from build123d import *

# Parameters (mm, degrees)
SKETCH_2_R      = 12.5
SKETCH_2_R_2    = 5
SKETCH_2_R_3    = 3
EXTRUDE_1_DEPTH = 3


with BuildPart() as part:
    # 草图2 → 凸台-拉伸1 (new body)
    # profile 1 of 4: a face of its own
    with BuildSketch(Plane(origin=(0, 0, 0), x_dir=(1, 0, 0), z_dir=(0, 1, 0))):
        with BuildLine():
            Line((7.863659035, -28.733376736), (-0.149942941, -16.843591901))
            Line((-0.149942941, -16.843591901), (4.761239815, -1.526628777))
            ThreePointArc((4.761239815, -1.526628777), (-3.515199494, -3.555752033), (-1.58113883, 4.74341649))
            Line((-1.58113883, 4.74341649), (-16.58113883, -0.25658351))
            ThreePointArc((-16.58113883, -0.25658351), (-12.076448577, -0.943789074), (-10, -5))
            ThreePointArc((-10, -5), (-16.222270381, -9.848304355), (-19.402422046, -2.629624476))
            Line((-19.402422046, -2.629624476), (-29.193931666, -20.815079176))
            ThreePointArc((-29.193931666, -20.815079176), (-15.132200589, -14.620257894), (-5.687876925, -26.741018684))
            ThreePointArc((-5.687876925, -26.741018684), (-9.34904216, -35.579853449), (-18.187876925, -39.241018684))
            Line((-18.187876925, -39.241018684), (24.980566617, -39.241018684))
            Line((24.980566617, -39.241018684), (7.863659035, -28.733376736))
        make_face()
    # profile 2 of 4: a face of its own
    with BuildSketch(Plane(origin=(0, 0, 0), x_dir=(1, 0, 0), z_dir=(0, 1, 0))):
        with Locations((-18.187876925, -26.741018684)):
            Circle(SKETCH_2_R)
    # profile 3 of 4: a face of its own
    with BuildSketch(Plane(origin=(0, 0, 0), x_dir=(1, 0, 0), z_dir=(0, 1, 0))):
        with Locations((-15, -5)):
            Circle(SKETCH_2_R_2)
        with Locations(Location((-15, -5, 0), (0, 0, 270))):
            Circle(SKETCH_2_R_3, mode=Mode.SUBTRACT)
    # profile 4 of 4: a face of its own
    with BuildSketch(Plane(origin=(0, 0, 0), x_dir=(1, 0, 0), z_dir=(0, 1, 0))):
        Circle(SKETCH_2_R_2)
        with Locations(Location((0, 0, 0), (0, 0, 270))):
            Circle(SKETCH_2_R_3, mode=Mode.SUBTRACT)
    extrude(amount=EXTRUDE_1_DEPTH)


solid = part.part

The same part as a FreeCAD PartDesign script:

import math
import FreeCAD as App
import Part
import Sketcher
Q = App.Units.Quantity

doc = App.newDocument("Part")
body = doc.addObject("PartDesign::Body", "Body")

sketch1 = body.newObject("Sketcher::SketchObject", "Sketch")
sketch1.AttachmentSupport = (doc.getObject("XZ_Plane"), [""])
sketch1.MapMode = "FlatFace"
sketch1.addGeometry(Part.LineSegment(App.Vector(7.9, 28.7, 0), App.Vector(-0.1, 16.8, 0)), False)
sketch1.addGeometry(Part.LineSegment(App.Vector(-0.1, 16.8, 0), App.Vector(4.8, 1.5, 0)), False)
sketch1.addGeometry(Part.ArcOfCircle(Part.Circle(App.Vector(0, 0, 0), App.Vector(0, 0, 1), 5), math.radians(-108), math.radians(18)), False)
sketch1.addGeometry(Part.LineSegment(App.Vector(-1.6, -4.7, 0), App.Vector(-16.6, 0.3, 0)), False)
sketch1.addGeometry(Part.ArcOfCircle(Part.Circle(App.Vector(-15, 5, 0), App.Vector(0, 0, 1), 5), math.radians(-152), math.radians(-108)), False)
sketch1.addGeometry(Part.LineSegment(App.Vector(-19.4, 2.6, 0), App.Vector(-29.2, 20.8, 0)), False)
sketch1.addGeometry(Part.ArcOfCircle(Part.Circle(App.Vector(-18.2, 26.7, 0), App.Vector(0, 0, 1), 12.5), math.radians(90), math.radians(208)), False)
sketch1.addGeometry(Part.LineSegment(App.Vector(-18.2, 39.2, 0), App.Vector(25, 39.2, 0)), False)
sketch1.addGeometry(Part.LineSegment(App.Vector(25, 39.2, 0), App.Vector(7.9, 28.7, 0)), False)
sketch1.addGeometry(Part.Circle(App.Vector(0, 0, 0), App.Vector(0, 0, 1), 3), False)
sketch1.addGeometry(Part.Circle(App.Vector(-15, 5, 0), App.Vector(0, 0, 1), 3), False)
sketch1.addConstraint(Sketcher.Constraint("Coincident", 0, 2, 1, 1))
sketch1.addConstraint(Sketcher.Constraint("Tangent", 1, 2, 2, 2))
sketch1.addConstraint(Sketcher.Constraint("Tangent", 2, 1, 3, 1))
sketch1.addConstraint(Sketcher.Constraint("Tangent", 3, 2, 4, 2))
sketch1.addConstraint(Sketcher.Constraint("Tangent", 4, 1, 5, 1))
sketch1.addConstraint(Sketcher.Constraint("Tangent", 5, 2, 6, 2))
sketch1.addConstraint(Sketcher.Constraint("Tangent", 6, 1, 7, 1))
sketch1.addConstraint(Sketcher.Constraint("Coincident", 7, 2, 8, 1))
sketch1.addConstraint(Sketcher.Constraint("Coincident", 8, 2, 0, 1))
sketch1.addConstraint(Sketcher.Constraint("Horizontal", 7))
sketch1.addConstraint(Sketcher.Constraint("Coincident", 2, 3, -1, 1))
sketch1.addConstraint(Sketcher.Constraint("Coincident", 9, 3, -1, 1))
sketch1.addConstraint(Sketcher.Constraint("Coincident", 10, 3, 4, 3))
sketch1.addConstraint(Sketcher.Constraint("Equal", 2, 4))
sketch1.addConstraint(Sketcher.Constraint("Equal", 9, 10))
sketch1.addConstraint(Sketcher.Constraint("Diameter", 9, Q("6 mm")))
sketch1.addConstraint(Sketcher.Constraint("Radius", 2, Q("5 mm")))
sketch1.addConstraint(Sketcher.Constraint("Radius", 6, Q("12.5 mm")))
sketch1.addConstraint(Sketcher.Constraint("DistanceX", 4, 3, -1, 1, Q("15 mm")))
sketch1.addConstraint(Sketcher.Constraint("DistanceY", -1, 1, 4, 3, Q("5 mm")))
sketch1.addConstraint(Sketcher.Constraint("DistanceX", 0, 2, 8, 2, Q("8.013602 mm")))
sketch1.addConstraint(Sketcher.Constraint("Distance", 0, Q("14.338229 mm")))
sketch1.addConstraint(Sketcher.Constraint("Distance", 5, Q("20.65392 mm")))
sketch1.addConstraint(Sketcher.Constraint("DistanceX", 7, 1, 7, 2, Q("43.168444 mm")))
sketch1.addConstraint(Sketcher.Constraint("DistanceY", -1, 1, 6, 3, Q("26.741019 mm")))
sketch1.addConstraint(Sketcher.Constraint("DistanceY", -1, 1, 0, 2, Q("16.843592 mm")))
sketch1.addConstraint(Sketcher.Constraint("DistanceX", -1, 1, 1, 2, Q("4.76124 mm")))
pad1 = body.newObject("PartDesign::Pad", "Pad")
pad1.Profile = sketch1
pad1.Length = 3
pad1.Reversed = True

doc.recompute()
